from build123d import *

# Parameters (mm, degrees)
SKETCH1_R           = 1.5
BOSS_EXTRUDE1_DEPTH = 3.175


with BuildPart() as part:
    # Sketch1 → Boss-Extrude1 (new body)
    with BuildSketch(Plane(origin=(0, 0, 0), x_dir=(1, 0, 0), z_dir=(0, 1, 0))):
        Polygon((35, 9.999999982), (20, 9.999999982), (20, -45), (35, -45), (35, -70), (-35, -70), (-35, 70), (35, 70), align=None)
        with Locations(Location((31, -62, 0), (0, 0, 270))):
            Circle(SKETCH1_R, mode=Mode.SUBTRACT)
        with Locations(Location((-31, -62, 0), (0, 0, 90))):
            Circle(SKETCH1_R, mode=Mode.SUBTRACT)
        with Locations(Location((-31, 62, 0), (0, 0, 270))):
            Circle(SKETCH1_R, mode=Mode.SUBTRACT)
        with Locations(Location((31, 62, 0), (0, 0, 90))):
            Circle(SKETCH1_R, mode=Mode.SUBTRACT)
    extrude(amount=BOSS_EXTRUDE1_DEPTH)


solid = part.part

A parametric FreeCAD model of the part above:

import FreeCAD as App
import Part
import Sketcher
from FreeCAD import Vector

doc = App.newDocument("Part")
body = doc.addObject("PartDesign::Body", "Body")

sketch1 = body.newObject("Sketcher::SketchObject", "Sketch")
sketch1.AttachmentSupport = (doc.getObject("XZ_Plane"), [""])
sketch1.MapMode = "FlatFace"
sketch1.addGeometry([
    Part.LineSegment(Vector(20, -10, 0), Vector(35, -10, 0)),
    Part.LineSegment(Vector(35, -10, 0), Vector(35, -70, 0)),
    Part.LineSegment(Vector(35, -70, 0), Vector(-35, -70, 0)),
    Part.LineSegment(Vector(-35, -70, 0), Vector(-35, 70, 0)),
    Part.LineSegment(Vector(-35, 70, 0), Vector(35, 70, 0)),
    Part.LineSegment(Vector(35, 70, 0), Vector(35, 45, 0)),
    Part.LineSegment(Vector(35, 45, 0), Vector(20, 45, 0)),
    Part.LineSegment(Vector(20, 45, 0), Vector(20, -10, 0)),
    Part.Circle(Vector(31, 62, 0), Vector(0, 0, 1), 1.5),
    Part.Circle(Vector(-31, 62, 0), Vector(0, 0, 1), 1.5),
    Part.Circle(Vector(31, -62, 0), Vector(0, 0, 1), 1.5),
    Part.Circle(Vector(-31, -62, 0), Vector(0, 0, 1), 1.5),
], False)
sketch1.addConstraint([
    Sketcher.Constraint("Coincident", 0, 2, 1, 1),
    Sketcher.Constraint("Coincident", 1, 2, 2, 1),
    Sketcher.Constraint("Coincident", 2, 2, 3, 1),
    Sketcher.Constraint("Coincident", 3, 2, 4, 1),
    Sketcher.Constraint("Coincident", 4, 2, 5, 1),
    Sketcher.Constraint("Coincident", 5, 2, 6, 1),
    Sketcher.Constraint("Coincident", 6, 2, 7, 1),
    Sketcher.Constraint("Coincident", 7, 2, 0, 1),
    Sketcher.Constraint("Horizontal", 0),
    Sketcher.Constraint("Vertical", 1),
    Sketcher.Constraint("Horizontal", 2),
    Sketcher.Constraint("Vertical", 3),
    Sketcher.Constraint("Horizontal", 4),
    Sketcher.Constraint("Vertical", 5),
    Sketcher.Constraint("Horizontal", 6),
    Sketcher.Constraint("Vertical", 7),
    Sketcher.Constraint("Equal", 8, 9),
    Sketcher.Constraint("Equal", 9, 10),
    Sketcher.Constraint("Equal", 10, 11),
    Sketcher.Constraint("Symmetric", 9, 3, 10, 3, -1, 1),
    Sketcher.Constraint("Symmetric", 8, 3, 11, 3, -1, 1),
    Sketcher.Constraint("Symmetric", 1, 2, 3, 2, -1, 1),
    Sketcher.Constraint("Symmetric", 8, 3, 9, 3, -2),
    Sketcher.Constraint("Vertical", 1, 2, 4, 2),
    Sketcher.Constraint("Diameter", 8, 3.0),
    Sketcher.Constraint("DistanceX", 0, 1, 0, 2, 15.0),
    Sketcher.Constraint("DistanceX", 2, 2, 2, 1, 70.0),
    Sketcher.Constraint("DistanceY", 1, 2, 1, 1, 60.0),
    Sketcher.Constraint("DistanceY", 3, 1, 3, 2, 140.0),
    Sketcher.Constraint("DistanceY", 5, 2, 5, 1, 25.0),
    Sketcher.Constraint("DistanceX", -1, 1, 8, 3, 31.0),
    Sketcher.Constraint("DistanceY", -1, 1, 8, 3, 62.0),
])
pad1 = body.newObject("PartDesign::Pad", "Pad")
pad1.Profile = sketch1
pad1.Length = 3.175
pad1.Reversed = True

doc.recompute()
